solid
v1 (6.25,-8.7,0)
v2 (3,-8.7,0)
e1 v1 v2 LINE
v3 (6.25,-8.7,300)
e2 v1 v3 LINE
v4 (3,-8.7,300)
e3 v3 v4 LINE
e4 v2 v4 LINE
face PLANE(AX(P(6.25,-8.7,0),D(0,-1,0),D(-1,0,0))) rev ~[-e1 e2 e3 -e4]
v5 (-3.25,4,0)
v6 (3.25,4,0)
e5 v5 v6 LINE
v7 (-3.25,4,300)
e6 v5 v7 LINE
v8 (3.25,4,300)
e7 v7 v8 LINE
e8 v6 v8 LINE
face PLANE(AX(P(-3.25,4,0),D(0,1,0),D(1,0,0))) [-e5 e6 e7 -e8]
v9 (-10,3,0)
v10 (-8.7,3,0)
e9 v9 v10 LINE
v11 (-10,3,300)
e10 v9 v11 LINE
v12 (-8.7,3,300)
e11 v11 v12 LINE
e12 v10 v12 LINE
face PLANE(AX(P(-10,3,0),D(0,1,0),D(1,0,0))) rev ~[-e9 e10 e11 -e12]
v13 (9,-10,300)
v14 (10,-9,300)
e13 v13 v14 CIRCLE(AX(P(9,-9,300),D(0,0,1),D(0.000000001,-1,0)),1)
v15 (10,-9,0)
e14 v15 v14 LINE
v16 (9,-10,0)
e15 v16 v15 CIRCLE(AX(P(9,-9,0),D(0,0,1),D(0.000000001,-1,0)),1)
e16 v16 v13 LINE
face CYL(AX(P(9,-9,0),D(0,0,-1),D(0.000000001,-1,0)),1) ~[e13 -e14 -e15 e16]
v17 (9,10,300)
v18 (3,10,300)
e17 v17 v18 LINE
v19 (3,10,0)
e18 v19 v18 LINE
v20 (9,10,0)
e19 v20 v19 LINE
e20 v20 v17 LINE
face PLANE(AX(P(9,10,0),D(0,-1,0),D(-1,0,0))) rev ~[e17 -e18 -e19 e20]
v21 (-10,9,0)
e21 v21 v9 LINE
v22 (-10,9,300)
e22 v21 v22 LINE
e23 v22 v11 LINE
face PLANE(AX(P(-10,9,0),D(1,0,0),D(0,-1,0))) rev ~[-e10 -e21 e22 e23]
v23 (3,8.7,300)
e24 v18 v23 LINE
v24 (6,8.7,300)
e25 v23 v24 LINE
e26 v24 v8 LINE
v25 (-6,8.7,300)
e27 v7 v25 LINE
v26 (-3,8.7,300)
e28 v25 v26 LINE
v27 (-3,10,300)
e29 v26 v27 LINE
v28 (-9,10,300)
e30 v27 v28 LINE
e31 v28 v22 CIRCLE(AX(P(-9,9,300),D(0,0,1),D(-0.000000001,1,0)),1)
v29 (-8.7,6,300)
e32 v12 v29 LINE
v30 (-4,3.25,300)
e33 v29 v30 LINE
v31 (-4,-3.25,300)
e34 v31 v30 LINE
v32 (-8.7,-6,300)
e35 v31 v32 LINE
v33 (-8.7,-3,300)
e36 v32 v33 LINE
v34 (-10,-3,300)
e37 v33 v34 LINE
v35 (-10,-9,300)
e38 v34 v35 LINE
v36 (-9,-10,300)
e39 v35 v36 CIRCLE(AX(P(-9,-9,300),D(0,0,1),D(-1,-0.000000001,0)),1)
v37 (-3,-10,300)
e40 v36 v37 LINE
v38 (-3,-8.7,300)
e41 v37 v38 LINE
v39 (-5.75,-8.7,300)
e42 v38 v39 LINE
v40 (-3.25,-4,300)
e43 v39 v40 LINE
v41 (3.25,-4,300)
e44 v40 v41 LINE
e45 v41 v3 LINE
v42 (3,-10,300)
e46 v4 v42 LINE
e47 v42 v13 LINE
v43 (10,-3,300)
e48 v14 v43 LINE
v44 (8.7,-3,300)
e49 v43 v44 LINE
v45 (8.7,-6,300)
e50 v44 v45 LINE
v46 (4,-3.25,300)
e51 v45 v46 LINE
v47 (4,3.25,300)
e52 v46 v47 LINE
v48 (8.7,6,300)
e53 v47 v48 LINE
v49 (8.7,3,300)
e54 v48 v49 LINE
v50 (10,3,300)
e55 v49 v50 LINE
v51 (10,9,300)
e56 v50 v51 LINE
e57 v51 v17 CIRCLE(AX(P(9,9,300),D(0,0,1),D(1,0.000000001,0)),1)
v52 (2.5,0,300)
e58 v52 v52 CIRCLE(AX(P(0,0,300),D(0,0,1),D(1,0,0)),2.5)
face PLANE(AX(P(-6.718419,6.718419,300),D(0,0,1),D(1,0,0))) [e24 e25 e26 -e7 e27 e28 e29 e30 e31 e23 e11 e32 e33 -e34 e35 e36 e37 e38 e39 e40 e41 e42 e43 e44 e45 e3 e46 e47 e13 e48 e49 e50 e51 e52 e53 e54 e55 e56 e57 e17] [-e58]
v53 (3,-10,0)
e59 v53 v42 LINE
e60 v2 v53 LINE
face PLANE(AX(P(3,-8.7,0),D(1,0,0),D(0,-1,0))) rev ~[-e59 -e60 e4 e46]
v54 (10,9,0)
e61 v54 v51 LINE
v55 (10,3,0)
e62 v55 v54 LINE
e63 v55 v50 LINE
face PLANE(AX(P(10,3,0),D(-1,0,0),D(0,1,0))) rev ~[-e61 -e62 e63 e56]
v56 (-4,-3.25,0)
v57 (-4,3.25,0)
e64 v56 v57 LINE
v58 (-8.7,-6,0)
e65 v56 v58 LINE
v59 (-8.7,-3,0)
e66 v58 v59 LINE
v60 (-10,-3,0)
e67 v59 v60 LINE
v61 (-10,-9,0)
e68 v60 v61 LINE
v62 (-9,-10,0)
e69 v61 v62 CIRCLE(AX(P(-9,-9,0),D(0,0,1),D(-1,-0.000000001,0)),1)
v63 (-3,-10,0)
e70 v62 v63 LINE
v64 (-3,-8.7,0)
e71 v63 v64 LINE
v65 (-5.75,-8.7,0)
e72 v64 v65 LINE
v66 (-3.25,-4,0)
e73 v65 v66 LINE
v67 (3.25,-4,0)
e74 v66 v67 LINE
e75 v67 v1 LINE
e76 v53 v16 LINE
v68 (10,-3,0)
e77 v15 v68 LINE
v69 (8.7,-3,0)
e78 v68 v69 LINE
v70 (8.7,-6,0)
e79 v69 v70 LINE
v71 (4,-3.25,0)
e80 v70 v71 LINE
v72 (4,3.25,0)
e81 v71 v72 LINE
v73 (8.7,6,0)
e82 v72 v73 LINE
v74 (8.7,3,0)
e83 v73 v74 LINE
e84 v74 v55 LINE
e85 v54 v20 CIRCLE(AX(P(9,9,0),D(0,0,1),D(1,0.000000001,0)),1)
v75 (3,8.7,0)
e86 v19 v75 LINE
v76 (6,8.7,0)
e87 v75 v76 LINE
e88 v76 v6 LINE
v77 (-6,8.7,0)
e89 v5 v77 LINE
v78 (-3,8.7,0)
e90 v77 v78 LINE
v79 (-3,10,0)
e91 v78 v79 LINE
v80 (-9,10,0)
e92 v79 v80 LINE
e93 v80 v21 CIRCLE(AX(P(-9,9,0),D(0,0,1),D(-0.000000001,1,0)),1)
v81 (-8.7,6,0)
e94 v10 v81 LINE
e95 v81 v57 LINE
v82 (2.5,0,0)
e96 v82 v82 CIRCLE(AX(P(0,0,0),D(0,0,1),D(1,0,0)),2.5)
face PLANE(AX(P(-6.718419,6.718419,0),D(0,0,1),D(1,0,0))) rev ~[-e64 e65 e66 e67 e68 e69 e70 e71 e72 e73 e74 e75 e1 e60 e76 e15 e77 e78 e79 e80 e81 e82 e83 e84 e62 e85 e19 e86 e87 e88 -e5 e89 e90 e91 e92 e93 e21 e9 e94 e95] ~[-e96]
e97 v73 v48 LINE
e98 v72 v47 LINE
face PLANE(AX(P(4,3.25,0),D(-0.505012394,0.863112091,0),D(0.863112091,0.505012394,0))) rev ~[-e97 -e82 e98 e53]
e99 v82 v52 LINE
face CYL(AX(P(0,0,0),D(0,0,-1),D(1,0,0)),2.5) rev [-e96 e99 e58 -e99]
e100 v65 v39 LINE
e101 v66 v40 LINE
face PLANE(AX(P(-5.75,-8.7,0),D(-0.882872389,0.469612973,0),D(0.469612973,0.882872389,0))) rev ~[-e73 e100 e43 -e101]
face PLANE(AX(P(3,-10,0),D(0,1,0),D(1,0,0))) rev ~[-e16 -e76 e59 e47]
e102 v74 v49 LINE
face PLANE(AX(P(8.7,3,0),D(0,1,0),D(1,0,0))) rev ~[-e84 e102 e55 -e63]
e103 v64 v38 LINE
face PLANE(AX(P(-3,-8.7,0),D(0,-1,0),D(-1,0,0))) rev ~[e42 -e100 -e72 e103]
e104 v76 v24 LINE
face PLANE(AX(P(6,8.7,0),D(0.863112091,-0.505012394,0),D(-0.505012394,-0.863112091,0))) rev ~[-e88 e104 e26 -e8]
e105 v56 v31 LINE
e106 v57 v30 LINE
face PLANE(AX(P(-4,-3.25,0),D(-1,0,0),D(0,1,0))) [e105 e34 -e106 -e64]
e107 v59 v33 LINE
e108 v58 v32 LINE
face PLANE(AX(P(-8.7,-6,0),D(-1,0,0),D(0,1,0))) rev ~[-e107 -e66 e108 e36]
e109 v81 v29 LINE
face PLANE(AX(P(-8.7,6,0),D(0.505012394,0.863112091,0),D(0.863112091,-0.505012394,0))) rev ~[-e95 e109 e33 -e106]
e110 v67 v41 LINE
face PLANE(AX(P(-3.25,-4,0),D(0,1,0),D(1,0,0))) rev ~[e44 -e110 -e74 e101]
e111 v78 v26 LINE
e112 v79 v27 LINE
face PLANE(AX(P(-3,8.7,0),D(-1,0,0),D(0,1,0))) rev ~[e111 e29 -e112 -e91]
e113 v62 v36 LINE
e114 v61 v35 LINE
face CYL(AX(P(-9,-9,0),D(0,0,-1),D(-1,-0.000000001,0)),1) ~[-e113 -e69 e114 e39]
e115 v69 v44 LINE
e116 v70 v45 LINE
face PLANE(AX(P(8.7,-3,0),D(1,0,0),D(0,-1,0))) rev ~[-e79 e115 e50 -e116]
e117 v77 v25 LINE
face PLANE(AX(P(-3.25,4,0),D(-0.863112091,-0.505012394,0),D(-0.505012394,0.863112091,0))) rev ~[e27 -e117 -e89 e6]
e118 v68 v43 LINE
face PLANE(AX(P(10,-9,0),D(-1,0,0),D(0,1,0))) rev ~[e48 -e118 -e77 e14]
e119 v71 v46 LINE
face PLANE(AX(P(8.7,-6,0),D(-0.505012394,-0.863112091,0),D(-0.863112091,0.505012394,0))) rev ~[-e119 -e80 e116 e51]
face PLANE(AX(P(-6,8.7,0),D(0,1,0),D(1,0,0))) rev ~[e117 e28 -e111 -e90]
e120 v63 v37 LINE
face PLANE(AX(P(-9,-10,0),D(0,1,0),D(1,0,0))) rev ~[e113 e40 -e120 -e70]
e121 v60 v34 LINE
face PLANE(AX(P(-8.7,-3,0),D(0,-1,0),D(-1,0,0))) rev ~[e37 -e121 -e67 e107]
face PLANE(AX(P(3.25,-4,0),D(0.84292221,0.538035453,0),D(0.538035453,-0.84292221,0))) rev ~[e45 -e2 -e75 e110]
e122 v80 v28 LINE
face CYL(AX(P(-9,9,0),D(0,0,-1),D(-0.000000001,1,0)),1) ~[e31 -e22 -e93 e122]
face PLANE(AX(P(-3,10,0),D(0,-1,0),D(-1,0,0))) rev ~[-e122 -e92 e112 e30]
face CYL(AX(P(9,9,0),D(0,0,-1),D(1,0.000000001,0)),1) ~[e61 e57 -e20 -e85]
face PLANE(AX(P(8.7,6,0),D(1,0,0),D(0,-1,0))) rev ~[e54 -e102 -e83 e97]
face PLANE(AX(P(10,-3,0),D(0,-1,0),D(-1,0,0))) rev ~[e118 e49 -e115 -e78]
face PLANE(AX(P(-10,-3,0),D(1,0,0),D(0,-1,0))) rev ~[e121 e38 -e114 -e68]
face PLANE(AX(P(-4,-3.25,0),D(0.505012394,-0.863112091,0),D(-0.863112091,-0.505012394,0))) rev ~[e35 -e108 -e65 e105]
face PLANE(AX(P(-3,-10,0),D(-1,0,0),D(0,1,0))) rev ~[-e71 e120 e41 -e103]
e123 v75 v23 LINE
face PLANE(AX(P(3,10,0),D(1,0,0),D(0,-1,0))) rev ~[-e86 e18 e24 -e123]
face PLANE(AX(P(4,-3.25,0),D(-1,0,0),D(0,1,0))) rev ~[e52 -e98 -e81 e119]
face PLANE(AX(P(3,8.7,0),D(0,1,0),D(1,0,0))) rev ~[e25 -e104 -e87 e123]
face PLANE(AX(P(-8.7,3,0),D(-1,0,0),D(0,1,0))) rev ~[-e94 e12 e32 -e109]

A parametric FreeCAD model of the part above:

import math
import FreeCAD as App
import Part
import Sketcher
from FreeCAD import Vector

doc = App.newDocument("Part")
params = doc.addObject("Spreadsheet::Sheet", "Params")
for row, (alias, value) in enumerate([
    ("sketch1_diameter", "5 mm"),
    ("sketch1_radius", "1 mm"),
    ("sketch1_width", "6 mm"),
    ("sketch1_width2", "3 mm"),
    ("sketch1_width3", "1.3 mm"),
    ("pad1_length", "300 mm"),
], start=1):
    params.set(f"A{row}", alias)
    params.set(f"B{row}", "=" + value)
    params.setAlias(f"B{row}", alias)

body = doc.addObject("PartDesign::Body", "Body")

sketch1 = doc.addObject("Sketcher::SketchObject", "Sketch")
body.addObject(sketch1)
sketch1.AttachmentSupport = (doc.XY_Plane, [""])
sketch1.MapMode = "FlatFace"
sketch1.addGeometry(Part.LineSegment(Vector(-3, 8.7, 0), Vector(-3, 10, 0)), False)
sketch1.addGeometry(Part.LineSegment(Vector(-3, 10, 0), Vector(-9, 10, 0)), False)
sketch1.addGeometry(Part.ArcOfCircle(Part.Circle(Vector(-9, 9, 0), Vector(0, 0, 1), 1), math.radians(90), math.radians(180)), False)
sketch1.addGeometry(Part.LineSegment(Vector(-10, 9, 0), Vector(-10, 3, 0)), False)
sketch1.addGeometry(Part.LineSegment(Vector(-10, 3, 0), Vector(-8.7, 3, 0)), False)
sketch1.addGeometry(Part.LineSegment(Vector(-8.7, 3, 0), Vector(-8.7, 6, 0)), False)
sketch1.addGeometry(Part.LineSegment(Vector(-8.7, 6, 0), Vector(-4, 3.2, 0)), False)
sketch1.addGeometry(Part.LineSegment(Vector(-4, 3.2, 0), Vector(-4, -3.2, 0)), False)
sketch1.addGeometry(Part.LineSegment(Vector(-4, -3.2, 0), Vector(-8.7, -6, 0)), False)
sketch1.addGeometry(Part.LineSegment(Vector(-8.7, -6, 0), Vector(-8.7, -3, 0)), False)
sketch1.addGeometry(Part.LineSegment(Vector(-8.7, -3, 0), Vector(-10, -3, 0)), False)
sketch1.addGeometry(Part.LineSegment(Vector(-10, -3, 0), Vector(-10, -9, 0)), False)
sketch1.addGeometry(Part.ArcOfCircle(Part.Circle(Vector(-9, -9, 0), Vector(0, 0, 1), 1), math.radians(-180), math.radians(-90)), False)
sketch1.addGeometry(Part.LineSegment(Vector(-9, -10, 0), Vector(-3, -10, 0)), False)
sketch1.addGeometry(Part.LineSegment(Vector(-3, -10, 0), Vector(-3, -8.7, 0)), False)
sketch1.addGeometry(Part.LineSegment(Vector(-3, -8.7, 0), Vector(-5.8, -8.7, 0)), False)
sketch1.addGeometry(Part.LineSegment(Vector(-5.8, -8.7, 0), Vector(-3.2, -4, 0)), False)
sketch1.addGeometry(Part.LineSegment(Vector(-3.2, -4, 0), Vector(3.2, -4, 0)), False)
sketch1.addGeometry(Part.LineSegment(Vector(3.2, -4, 0), Vector(6.2, -8.7, 0)), False)
sketch1.addGeometry(Part.LineSegment(Vector(6.2, -8.7, 0), Vector(3, -8.7, 0)), False)
sketch1.addGeometry(Part.LineSegment(Vector(3, -8.7, 0), Vector(3, -10, 0)), False)
sketch1.addGeometry(Part.LineSegment(Vector(3, -10, 0), Vector(9, -10, 0)), False)
sketch1.addGeometry(Part.ArcOfCircle(Part.Circle(Vector(9, -9, 0), Vector(0, 0, 1), 1), math.radians(-90), math.radians(0)), False)
sketch1.addGeometry(Part.LineSegment(Vector(10, -9, 0), Vector(10, -3, 0)), False)
sketch1.addGeometry(Part.LineSegment(Vector(10, -3, 0), Vector(8.7, -3, 0)), False)
sketch1.addGeometry(Part.LineSegment(Vector(8.7, -3, 0), Vector(8.7, -6, 0)), False)
sketch1.addGeometry(Part.LineSegment(Vector(8.7, -6, 0), Vector(4, -3.2, 0)), False)
sketch1.addGeometry(Part.LineSegment(Vector(4, -3.2, 0), Vector(4, 3.2, 0)), False)
sketch1.addGeometry(Part.LineSegment(Vector(4, 3.2, 0), Vector(8.7, 6, 0)), False)
sketch1.addGeometry(Part.LineSegment(Vector(8.7, 6, 0), Vector(8.7, 3, 0)), False)
sketch1.addGeometry(Part.LineSegment(Vector(8.7, 3, 0), Vector(10, 3, 0)), False)
sketch1.addGeometry(Part.LineSegment(Vector(10, 3, 0), Vector(10, 9, 0)), False)
sketch1.addGeometry(Part.ArcOfCircle(Part.Circle(Vector(9, 9, 0), Vector(0, 0, 1), 1), math.radians(0), math.radians(90)), False)
sketch1.addGeometry(Part.LineSegment(Vector(9, 10, 0), Vector(3, 10, 0)), False)
sketch1.addGeometry(Part.LineSegment(Vector(3, 10, 0), Vector(3, 8.7, 0)), False)
sketch1.addGeometry(Part.LineSegment(Vector(3, 8.7, 0), Vector(6, 8.7, 0)), False)
sketch1.addGeometry(Part.LineSegment(Vector(6, 8.7, 0), Vector(3.2, 4, 0)), False)
sketch1.addGeometry(Part.LineSegment(Vector(3.2, 4, 0), Vector(-3.2, 4, 0)), False)
sketch1.addGeometry(Part.LineSegment(Vector(-3.2, 4, 0), Vector(-6, 8.7, 0)), False)
sketch1.addGeometry(Part.LineSegment(Vector(-6, 8.7, 0), Vector(-3, 8.7, 0)), False)
sketch1.addGeometry(Part.Circle(Vector(0, 0, 0), Vector(0, 0, 1), 2.5), False)
sketch1.addConstraint(Sketcher.Constraint("Coincident", 0, 2, 1, 1))
sketch1.addConstraint(Sketcher.Constraint("Tangent", 1, 2, 2, 1))
sketch1.addConstraint(Sketcher.Constraint("Tangent", 2, 2, 3, 1))
sketch1.addConstraint(Sketcher.Constraint("Coincident", 3, 2, 4, 1))
sketch1.addConstraint(Sketcher.Constraint("Coincident", 4, 2, 5, 1))
sketch1.addConstraint(Sketcher.Constraint("Coincident", 5, 2, 6, 1))
sketch1.addConstraint(Sketcher.Constraint("Coincident", 6, 2, 7, 1))
sketch1.addConstraint(Sketcher.Constraint("Coincident", 7, 2, 8, 1))
sketch1.addConstraint(Sketcher.Constraint("Coincident", 8, 2, 9, 1))
sketch1.addConstraint(Sketcher.Constraint("Coincident", 9, 2, 10, 1))
sketch1.addConstraint(Sketcher.Constraint("Coincident", 10, 2, 11, 1))
sketch1.addConstraint(Sketcher.Constraint("Tangent", 11, 2, 12, 1))
sketch1.addConstraint(Sketcher.Constraint("Tangent", 12, 2, 13, 1))
sketch1.addConstraint(Sketcher.Constraint("Coincident", 13, 2, 14, 1))
sketch1.addConstraint(Sketcher.Constraint("Coincident", 14, 2, 15, 1))
sketch1.addConstraint(Sketcher.Constraint("Coincident", 15, 2, 16, 1))
sketch1.addConstraint(Sketcher.Constraint("Coincident", 16, 2, 17, 1))
sketch1.addConstraint(Sketcher.Constraint("Coincident", 17, 2, 18, 1))
sketch1.addConstraint(Sketcher.Constraint("Coincident", 18, 2, 19, 1))
sketch1.addConstraint(Sketcher.Constraint("Coincident", 19, 2, 20, 1))
sketch1.addConstraint(Sketcher.Constraint("Coincident", 20, 2, 21, 1))
sketch1.addConstraint(Sketcher.Constraint("Tangent", 21, 2, 22, 1))
sketch1.addConstraint(Sketcher.Constraint("Tangent", 22, 2, 23, 1))
sketch1.addConstraint(Sketcher.Constraint("Coincident", 23, 2, 24, 1))
sketch1.addConstraint(Sketcher.Constraint("Coincident", 24, 2, 25, 1))
sketch1.addConstraint(Sketcher.Constraint("Coincident", 25, 2, 26, 1))
sketch1.addConstraint(Sketcher.Constraint("Coincident", 26, 2, 27, 1))
sketch1.addConstraint(Sketcher.Constraint("Coincident", 27, 2, 28, 1))
sketch1.addConstraint(Sketcher.Constraint("Coincident", 28, 2, 29, 1))
sketch1.addConstraint(Sketcher.Constraint("Coincident", 29, 2, 30, 1))
sketch1.addConstraint(Sketcher.Constraint("Coincident", 30, 2, 31, 1))
sketch1.addConstraint(Sketcher.Constraint("Tangent", 31, 2, 32, 1))
sketch1.addConstraint(Sketcher.Constraint("Tangent", 32, 2, 33, 1))
sketch1.addConstraint(Sketcher.Constraint("Coincident", 33, 2, 34, 1))
sketch1.addConstraint(Sketcher.Constraint("Coincident", 34, 2, 35, 1))
sketch1.addConstraint(Sketcher.Constraint("Coincident", 35, 2, 36, 1))
sketch1.addConstraint(Sketcher.Constraint("Coincident", 36, 2, 37, 1))
sketch1.addConstraint(Sketcher.Constraint("Coincident", 37, 2, 38, 1))
sketch1.addConstraint(Sketcher.Constraint("Coincident", 38, 2, 39, 1))
sketch1.addConstraint(Sketcher.Constraint("Coincident", 39, 2, 0, 1))
sketch1.addConstraint(Sketcher.Constraint("Vertical", 0))
sketch1.addConstraint(Sketcher.Constraint("Horizontal", 1))
sketch1.addConstraint(Sketcher.Constraint("Vertical", 3))
sketch1.addConstraint(Sketcher.Constraint("Horizontal", 4))
sketch1.addConstraint(Sketcher.Constraint("Vertical", 5))
sketch1.addConstraint(Sketcher.Constraint("Vertical", 7))
sketch1.addConstraint(Sketcher.Constraint("Vertical", 9))
sketch1.addConstraint(Sketcher.Constraint("Horizontal", 10))
sketch1.addConstraint(Sketcher.Constraint("Vertical", 11))
sketch1.addConstraint(Sketcher.Constraint("Horizontal", 13))
sketch1.addConstraint(Sketcher.Constraint("Vertical", 14))
sketch1.addConstraint(Sketcher.Constraint("Horizontal", 15))
sketch1.addConstraint(Sketcher.Constraint("Horizontal", 17))
sketch1.addConstraint(Sketcher.Constraint("Horizontal", 19))
sketch1.addConstraint(Sketcher.Constraint("Vertical", 20))
sketch1.addConstraint(Sketcher.Constraint("Horizontal", 21))
sketch1.addConstraint(Sketcher.Constraint("Vertical", 23))
sketch1.addConstraint(Sketcher.Constraint("Horizontal", 24))
sketch1.addConstraint(Sketcher.Constraint("Vertical", 25))
sketch1.addConstraint(Sketcher.Constraint("Vertical", 27))
sketch1.addConstraint(Sketcher.Constraint("Vertical", 29))
sketch1.addConstraint(Sketcher.Constraint("Horizontal", 30))
sketch1.addConstraint(Sketcher.Constraint("Vertical", 31))
sketch1.addConstraint(Sketcher.Constraint("Horizontal", 33))
sketch1.addConstraint(Sketcher.Constraint("Vertical", 34))
sketch1.addConstraint(Sketcher.Constraint("Horizontal", 35))
sketch1.addConstraint(Sketcher.Constraint("Horizontal", 37))
sketch1.addConstraint(Sketcher.Constraint("Horizontal", 39))
sketch1.addConstraint(Sketcher.Constraint("Coincident", 40, 3, -1, 1))
sketch1.addConstraint(Sketcher.Constraint("Equal", 2, 12))
sketch1.addConstraint(Sketcher.Constraint("Equal", 12, 22))
sketch1.addConstraint(Sketcher.Constraint("Equal", 22, 32))
sketch1.addConstraint(Sketcher.Constraint("Symmetric", 2, 3, 22, 3, -1, 1))
sketch1.addConstraint(Sketcher.Constraint("Symmetric", 12, 3, 32, 3, -1, 1))
sketch1.addConstraint(Sketcher.Constraint("Symmetric", 4, 2, 24, 2, -1, 1))
sketch1.addConstraint(Sketcher.Constraint("Symmetric", 6, 2, 26, 2, -1, 1))
sketch1.addConstraint(Sketcher.Constraint("Symmetric", 8, 2, 28, 2, -1, 1))
sketch1.addConstraint(Sketcher.Constraint("Symmetric", 14, 2, 34, 2, -1, 1))
sketch1.addConstraint(Sketcher.Constraint("Symmetric", 16, 2, 36, 2, -1, 1))
sketch1.addConstraint(Sketcher.Constraint("Symmetric", 19, 2, 39, 2, -1, 1))
sketch1.addConstraint(Sketcher.Constraint("Symmetric", 12, 3, 22, 3, -2))
sketch1.addConstraint(Sketcher.Constraint("Symmetric", 14, 2, 19, 2, -2))
sketch1.addConstraint(Sketcher.Constraint("Symmetric", 9, 2, 24, 2, -2))
sketch1.addConstraint(Sketcher.Constraint("Parallel", 6, 26))
sketch1.addConstraint(Sketcher.Constraint("Parallel", 8, 28))
sketch1.addConstraint(Sketcher.Constraint("Perpendicular", 26, 36))
sketch1.addConstraint(Sketcher.Constraint("Perpendicular", 28, 38))
sketch1.addConstraint(Sketcher.Constraint("Horizontal", 8, 2, 25, 2))
sketch1.addConstraint(Sketcher.Constraint("Horizontal", 7, 2, 26, 2))
sketch1.addConstraint(Sketcher.Constraint("Horizontal", 4, 2, 29, 2))
sketch1.addConstraint(Sketcher.Constraint("Vertical", 17, 2, 36, 2))
sketch1.addConstraint(Sketcher.Constraint("Vertical", 16, 2, 37, 2))
sketch1.addConstraint(Sketcher.Constraint("Equal", 30, 0))
sketch1.addConstraint(Sketcher.Constraint("Equal", 33, 3))
sketch1.addConstraint(Sketcher.Constraint("Equal", 39, 5))
sketch1.addConstraint(Sketcher.Constraint("Equal", 37, 7))
sketch1.addConstraint(Sketcher.Constraint("Equal", 28, 36))
sketch1.addConstraint(Sketcher.Constraint("Diameter", 40, 5.0))
sketch1.addConstraint(Sketcher.Constraint("Radius", 2, 1.0))
sketch1.addConstraint(Sketcher.Constraint("DistanceX", 1, 2, 1, 1, 6.0))
sketch1.addConstraint(Sketcher.Constraint("DistanceX", 35, 1, 35, 2, 3.0))
sketch1.addConstraint(Sketcher.Constraint("DistanceX", 4, 1, 4, 2, 1.3))
sketch1.addConstraint(Sketcher.Constraint("DistanceX", 17, 1, 17, 2, 6.5))
sketch1.addConstraint(Sketcher.Constraint("DistanceX", 2, 3, -1, 1, 9.0))
sketch1.addConstraint(Sketcher.Constraint("DistanceX", 6, 2, -1, 1, 4.0))
sketch1.addConstraint(Sketcher.Constraint("DistanceX", 17, 2, 18, 2, 3.0))
sketch1.addConstraint(Sketcher.Constraint("DistanceX", 15, 2, 15, 1, 2.75))
sketch1.setExpression("Constraints[97]", "Params.sketch1_diameter")
sketch1.setExpression("Constraints[98]", "Params.sketch1_radius")
sketch1.setExpression("Constraints[99]", "Params.sketch1_width")
sketch1.setExpression("Constraints[100]", "Params.sketch1_width2")
sketch1.setExpression("Constraints[101]", "Params.sketch1_width3")
pad1 = doc.addObject("PartDesign::Pad", "Pad")
body.addObject(pad1)
pad1.Profile = sketch1
pad1.setExpression("Length", "Params.pad1_length")

doc.recompute()
